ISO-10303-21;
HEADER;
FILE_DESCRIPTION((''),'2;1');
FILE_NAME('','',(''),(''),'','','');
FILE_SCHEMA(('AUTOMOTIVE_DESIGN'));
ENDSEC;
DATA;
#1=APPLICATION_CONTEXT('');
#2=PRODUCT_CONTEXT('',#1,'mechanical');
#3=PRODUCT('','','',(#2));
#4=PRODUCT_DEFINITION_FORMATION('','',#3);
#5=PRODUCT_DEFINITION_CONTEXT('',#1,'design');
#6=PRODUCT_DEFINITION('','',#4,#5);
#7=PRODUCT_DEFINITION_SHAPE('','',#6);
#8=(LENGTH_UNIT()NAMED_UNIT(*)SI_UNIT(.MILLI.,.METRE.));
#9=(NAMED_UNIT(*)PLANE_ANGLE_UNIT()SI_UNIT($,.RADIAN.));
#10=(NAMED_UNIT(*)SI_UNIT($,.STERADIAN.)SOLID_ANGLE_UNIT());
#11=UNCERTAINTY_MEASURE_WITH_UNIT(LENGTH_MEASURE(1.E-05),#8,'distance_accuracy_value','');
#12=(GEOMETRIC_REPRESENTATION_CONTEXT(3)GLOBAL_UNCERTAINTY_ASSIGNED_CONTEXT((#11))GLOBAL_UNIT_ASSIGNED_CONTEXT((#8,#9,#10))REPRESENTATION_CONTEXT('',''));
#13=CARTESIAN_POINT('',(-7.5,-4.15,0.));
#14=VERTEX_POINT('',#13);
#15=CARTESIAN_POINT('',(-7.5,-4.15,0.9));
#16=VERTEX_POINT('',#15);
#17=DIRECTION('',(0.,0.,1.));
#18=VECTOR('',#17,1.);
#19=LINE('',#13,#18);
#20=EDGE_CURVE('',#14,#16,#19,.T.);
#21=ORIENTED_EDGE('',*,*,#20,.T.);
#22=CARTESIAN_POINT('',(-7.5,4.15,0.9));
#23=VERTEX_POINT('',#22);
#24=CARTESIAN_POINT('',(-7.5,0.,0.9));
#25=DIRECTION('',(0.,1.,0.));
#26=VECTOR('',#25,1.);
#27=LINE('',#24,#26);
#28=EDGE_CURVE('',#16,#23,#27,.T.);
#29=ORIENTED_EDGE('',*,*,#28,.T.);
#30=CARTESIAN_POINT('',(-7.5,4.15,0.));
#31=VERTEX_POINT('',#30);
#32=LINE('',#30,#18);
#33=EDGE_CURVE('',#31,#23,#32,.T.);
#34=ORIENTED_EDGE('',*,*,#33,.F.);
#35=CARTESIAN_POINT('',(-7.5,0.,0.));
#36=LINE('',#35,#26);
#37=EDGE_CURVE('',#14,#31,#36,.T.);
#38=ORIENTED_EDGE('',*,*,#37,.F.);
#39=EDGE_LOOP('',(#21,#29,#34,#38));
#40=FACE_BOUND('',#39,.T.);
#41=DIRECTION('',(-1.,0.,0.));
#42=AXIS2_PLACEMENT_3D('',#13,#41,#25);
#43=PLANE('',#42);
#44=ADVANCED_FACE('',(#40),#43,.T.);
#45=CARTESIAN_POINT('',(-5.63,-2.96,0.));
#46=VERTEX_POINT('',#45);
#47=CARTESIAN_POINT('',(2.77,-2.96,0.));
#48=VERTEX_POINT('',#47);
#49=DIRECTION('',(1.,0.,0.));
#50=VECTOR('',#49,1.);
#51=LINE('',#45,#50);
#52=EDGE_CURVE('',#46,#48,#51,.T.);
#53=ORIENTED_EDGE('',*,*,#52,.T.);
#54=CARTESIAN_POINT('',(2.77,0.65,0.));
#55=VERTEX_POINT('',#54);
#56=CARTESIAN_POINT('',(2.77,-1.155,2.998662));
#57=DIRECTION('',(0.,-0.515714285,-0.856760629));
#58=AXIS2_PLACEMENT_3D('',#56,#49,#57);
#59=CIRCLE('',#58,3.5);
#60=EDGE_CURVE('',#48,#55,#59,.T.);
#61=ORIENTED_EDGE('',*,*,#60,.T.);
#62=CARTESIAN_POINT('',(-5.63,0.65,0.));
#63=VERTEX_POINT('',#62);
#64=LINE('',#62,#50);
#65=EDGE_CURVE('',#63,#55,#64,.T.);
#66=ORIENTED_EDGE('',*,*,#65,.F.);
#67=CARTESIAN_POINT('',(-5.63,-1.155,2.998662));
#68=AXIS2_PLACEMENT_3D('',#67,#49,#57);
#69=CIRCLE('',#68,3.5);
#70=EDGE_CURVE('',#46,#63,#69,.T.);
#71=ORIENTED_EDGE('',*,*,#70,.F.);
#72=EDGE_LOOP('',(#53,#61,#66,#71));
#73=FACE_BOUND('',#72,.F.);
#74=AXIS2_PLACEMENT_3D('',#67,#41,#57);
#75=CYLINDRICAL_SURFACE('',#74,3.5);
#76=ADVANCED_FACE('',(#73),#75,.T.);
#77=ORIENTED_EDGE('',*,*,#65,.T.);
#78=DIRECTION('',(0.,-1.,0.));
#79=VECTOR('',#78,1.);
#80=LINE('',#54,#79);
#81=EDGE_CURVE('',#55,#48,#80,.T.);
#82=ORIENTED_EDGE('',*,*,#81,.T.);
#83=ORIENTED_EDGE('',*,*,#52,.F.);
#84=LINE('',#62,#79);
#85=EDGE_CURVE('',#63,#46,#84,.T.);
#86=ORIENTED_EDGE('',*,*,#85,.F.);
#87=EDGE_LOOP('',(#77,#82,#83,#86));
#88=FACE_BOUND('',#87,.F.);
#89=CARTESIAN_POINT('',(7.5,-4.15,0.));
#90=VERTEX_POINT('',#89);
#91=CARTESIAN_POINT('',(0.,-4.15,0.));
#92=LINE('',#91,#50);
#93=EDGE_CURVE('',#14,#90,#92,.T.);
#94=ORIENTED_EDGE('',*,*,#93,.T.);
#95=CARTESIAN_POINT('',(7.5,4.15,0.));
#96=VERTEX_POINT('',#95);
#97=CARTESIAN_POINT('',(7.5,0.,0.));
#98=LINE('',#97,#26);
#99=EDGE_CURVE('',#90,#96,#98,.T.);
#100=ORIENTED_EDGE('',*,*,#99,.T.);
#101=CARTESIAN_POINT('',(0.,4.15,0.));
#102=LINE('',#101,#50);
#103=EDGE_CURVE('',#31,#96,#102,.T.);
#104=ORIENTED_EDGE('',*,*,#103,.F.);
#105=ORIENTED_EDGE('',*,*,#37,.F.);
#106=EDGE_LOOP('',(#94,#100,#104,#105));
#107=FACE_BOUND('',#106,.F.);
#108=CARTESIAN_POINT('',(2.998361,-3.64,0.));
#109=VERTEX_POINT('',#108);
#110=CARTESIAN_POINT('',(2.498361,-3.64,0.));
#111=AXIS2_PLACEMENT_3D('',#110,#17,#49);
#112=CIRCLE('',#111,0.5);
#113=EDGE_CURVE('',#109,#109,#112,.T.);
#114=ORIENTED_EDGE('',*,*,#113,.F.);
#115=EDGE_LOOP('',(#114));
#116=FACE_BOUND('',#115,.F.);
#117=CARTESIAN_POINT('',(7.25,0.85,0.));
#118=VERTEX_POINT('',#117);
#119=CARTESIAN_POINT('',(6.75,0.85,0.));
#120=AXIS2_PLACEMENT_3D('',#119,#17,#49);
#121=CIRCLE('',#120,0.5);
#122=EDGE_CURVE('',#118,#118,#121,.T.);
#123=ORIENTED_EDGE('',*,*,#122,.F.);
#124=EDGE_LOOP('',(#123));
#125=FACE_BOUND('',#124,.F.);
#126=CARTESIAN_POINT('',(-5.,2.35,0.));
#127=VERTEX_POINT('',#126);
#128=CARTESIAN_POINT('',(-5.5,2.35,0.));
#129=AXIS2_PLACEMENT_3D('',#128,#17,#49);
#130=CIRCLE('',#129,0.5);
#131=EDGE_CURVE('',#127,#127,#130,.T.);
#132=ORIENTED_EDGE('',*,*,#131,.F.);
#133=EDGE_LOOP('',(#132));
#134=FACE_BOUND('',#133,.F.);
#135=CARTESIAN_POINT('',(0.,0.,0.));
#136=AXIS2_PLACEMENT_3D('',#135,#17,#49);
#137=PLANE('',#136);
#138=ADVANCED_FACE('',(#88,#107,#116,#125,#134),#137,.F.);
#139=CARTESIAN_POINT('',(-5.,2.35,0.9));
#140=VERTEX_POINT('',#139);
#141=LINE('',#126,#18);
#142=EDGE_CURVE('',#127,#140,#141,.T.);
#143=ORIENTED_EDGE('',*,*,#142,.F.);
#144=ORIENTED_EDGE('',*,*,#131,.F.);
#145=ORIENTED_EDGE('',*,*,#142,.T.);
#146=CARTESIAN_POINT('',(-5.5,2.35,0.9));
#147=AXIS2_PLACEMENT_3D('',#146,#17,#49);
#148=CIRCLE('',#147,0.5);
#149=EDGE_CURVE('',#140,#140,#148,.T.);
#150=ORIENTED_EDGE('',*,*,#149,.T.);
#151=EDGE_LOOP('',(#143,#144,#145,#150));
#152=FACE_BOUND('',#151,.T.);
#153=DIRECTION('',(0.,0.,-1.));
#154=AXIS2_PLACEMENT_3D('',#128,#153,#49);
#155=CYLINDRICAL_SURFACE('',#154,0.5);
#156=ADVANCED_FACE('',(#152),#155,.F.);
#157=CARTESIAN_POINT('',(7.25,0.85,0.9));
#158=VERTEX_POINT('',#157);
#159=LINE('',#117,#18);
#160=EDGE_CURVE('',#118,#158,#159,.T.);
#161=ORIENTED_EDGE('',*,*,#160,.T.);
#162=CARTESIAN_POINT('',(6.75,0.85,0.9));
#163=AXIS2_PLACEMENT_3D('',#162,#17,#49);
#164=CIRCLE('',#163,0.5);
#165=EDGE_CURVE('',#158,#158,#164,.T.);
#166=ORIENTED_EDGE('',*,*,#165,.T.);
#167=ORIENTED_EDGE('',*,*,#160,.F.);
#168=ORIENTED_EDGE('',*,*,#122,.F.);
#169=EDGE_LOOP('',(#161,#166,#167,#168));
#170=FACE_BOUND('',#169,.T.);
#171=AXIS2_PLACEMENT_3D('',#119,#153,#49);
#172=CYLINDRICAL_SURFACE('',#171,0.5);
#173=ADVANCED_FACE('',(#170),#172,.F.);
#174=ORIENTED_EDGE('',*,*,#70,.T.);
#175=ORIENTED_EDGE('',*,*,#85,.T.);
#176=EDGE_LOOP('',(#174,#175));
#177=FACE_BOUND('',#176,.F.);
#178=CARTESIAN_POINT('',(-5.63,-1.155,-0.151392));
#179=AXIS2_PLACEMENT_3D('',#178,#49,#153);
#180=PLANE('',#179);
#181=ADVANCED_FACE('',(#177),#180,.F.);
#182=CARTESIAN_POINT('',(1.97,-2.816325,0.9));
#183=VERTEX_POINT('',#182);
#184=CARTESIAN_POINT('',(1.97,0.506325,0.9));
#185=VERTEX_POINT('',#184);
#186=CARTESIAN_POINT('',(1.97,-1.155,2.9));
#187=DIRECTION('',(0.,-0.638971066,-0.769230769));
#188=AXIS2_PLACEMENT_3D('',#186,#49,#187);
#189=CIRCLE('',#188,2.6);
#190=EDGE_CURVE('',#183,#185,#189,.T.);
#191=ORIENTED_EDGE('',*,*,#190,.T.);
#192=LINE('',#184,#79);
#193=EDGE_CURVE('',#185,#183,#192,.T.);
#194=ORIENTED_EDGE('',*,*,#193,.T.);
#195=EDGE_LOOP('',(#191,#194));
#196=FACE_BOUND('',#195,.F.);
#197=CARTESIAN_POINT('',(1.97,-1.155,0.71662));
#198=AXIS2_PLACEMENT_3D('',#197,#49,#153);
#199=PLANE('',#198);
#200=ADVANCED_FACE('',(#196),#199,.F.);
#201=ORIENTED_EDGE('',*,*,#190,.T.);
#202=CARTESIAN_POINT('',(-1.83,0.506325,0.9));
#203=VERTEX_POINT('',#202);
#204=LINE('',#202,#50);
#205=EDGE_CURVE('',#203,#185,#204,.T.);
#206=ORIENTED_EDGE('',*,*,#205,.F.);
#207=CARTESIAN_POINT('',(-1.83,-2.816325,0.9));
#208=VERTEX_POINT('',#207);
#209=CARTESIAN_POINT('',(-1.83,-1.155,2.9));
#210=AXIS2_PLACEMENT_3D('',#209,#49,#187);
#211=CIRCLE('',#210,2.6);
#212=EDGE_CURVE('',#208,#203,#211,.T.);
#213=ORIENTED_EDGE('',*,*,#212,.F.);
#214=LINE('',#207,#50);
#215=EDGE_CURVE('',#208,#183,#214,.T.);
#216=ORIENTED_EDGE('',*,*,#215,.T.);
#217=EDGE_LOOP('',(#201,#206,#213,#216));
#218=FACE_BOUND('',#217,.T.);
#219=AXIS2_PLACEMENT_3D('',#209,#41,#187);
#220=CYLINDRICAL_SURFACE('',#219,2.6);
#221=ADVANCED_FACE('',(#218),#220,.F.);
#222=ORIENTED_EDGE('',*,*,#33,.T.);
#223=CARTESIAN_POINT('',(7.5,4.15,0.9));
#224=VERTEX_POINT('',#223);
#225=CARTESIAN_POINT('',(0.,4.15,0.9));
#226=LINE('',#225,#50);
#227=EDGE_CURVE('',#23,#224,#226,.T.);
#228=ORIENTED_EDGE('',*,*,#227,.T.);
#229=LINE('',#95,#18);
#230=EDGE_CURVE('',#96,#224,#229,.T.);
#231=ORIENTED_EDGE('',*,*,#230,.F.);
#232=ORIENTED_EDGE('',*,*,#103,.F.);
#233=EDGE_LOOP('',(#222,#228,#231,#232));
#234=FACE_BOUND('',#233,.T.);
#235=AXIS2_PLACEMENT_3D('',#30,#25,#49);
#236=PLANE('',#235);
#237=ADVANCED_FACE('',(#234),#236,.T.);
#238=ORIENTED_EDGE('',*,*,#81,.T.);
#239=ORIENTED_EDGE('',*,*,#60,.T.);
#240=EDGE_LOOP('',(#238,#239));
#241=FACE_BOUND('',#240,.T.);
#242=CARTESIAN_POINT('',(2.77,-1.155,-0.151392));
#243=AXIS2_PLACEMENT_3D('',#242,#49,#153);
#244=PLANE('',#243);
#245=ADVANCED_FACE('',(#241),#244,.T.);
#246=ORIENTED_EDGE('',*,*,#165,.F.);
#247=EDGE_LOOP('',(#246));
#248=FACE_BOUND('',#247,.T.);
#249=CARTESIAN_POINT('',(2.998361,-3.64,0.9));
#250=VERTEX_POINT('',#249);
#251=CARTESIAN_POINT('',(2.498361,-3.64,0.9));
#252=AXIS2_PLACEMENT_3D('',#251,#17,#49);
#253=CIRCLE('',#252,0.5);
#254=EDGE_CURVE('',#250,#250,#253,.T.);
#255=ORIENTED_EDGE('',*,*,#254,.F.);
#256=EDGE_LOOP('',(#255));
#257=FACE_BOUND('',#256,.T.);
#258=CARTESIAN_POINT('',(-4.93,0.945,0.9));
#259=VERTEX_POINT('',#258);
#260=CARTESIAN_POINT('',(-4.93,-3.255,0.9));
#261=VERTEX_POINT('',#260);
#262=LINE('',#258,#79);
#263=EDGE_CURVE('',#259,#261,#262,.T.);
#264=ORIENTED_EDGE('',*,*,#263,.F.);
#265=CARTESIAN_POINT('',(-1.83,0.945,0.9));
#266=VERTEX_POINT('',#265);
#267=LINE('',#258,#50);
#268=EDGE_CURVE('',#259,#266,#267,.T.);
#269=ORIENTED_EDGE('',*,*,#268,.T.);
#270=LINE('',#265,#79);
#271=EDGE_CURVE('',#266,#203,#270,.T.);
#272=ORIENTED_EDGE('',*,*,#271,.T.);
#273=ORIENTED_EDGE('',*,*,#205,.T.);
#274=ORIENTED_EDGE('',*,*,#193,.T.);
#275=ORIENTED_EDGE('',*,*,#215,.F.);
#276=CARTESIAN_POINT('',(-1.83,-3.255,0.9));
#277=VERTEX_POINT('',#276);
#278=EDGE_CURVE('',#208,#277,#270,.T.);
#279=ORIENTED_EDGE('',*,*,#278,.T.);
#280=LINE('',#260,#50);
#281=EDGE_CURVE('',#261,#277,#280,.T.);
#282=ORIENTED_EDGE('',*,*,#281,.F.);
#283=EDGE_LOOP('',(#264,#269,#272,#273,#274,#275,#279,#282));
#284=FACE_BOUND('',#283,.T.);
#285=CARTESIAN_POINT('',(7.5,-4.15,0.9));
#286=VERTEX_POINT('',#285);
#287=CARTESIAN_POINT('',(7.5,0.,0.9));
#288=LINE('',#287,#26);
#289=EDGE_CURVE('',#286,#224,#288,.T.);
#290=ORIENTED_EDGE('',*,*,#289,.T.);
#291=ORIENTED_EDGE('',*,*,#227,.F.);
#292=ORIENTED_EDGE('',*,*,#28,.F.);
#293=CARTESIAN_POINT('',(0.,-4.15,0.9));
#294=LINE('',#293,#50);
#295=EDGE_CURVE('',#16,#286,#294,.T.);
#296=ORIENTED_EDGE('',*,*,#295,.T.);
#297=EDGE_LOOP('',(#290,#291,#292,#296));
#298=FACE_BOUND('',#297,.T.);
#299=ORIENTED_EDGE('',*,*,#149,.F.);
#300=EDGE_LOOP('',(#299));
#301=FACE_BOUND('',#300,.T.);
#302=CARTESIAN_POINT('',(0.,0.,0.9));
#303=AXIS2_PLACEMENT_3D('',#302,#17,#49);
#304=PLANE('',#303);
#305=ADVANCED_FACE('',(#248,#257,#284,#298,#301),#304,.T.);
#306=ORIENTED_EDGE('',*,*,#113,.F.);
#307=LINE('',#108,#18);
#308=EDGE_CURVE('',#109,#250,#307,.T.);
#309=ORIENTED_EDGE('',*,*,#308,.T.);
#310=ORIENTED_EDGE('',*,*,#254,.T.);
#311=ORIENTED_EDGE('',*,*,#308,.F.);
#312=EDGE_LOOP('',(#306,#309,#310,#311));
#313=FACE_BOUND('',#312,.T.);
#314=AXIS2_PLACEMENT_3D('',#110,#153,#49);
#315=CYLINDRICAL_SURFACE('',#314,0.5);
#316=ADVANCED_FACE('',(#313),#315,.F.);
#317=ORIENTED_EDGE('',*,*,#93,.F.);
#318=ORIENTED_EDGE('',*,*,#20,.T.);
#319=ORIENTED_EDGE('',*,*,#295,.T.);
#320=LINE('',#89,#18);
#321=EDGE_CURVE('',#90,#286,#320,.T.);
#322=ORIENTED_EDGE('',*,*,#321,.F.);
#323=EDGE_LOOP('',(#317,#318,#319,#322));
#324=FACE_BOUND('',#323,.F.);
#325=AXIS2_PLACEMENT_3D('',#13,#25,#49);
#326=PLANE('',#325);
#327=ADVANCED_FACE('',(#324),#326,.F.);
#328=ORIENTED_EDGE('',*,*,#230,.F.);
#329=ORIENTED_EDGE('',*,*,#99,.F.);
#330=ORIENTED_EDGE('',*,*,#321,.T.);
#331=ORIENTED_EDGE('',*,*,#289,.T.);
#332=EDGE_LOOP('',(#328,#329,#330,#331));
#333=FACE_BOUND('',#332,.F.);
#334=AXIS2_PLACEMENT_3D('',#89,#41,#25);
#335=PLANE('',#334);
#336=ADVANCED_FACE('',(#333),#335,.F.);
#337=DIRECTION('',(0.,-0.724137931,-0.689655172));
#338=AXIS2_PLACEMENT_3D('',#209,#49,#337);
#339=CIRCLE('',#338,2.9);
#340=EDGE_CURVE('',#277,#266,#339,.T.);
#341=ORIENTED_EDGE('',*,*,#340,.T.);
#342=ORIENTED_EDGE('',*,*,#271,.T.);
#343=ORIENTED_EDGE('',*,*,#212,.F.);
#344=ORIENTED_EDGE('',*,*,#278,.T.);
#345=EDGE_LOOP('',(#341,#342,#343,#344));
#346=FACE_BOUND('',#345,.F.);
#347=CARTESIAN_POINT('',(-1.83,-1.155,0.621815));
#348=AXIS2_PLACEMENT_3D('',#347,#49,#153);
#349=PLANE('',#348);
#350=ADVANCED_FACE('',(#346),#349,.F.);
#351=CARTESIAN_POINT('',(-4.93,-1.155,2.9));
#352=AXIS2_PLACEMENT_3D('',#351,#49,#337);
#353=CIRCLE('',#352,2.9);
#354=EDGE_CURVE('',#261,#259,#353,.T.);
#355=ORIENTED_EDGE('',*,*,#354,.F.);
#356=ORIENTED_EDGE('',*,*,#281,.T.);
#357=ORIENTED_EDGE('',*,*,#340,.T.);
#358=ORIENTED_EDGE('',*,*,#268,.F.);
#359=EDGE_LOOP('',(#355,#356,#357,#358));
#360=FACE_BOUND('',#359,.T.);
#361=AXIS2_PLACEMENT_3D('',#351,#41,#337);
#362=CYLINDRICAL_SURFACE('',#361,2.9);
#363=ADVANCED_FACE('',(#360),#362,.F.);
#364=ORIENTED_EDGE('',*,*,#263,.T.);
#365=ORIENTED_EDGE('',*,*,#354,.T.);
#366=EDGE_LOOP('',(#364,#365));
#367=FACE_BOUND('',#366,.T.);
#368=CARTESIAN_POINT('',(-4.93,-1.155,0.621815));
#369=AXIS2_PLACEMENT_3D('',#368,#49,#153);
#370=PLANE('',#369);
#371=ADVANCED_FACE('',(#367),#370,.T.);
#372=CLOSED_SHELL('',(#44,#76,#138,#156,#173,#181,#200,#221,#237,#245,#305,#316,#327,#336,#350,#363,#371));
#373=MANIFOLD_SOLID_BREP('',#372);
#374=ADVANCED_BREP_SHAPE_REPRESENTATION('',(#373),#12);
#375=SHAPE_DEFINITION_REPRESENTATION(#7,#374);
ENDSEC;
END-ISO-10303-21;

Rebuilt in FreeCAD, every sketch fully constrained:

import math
import FreeCAD as App
import Part
import Sketcher


def add_polygon(sketch, points):
    """Adds a closed chain of lines whose ends are joined by coincident constraints."""
    first, n = sketch.GeometryCount, len(points)
    for a, b in zip(points, points[1:] + points[:1]):
        sketch.addGeometry(Part.LineSegment(App.Vector(*a, 0), App.Vector(*b, 0)), False)
    for i in range(n):
        sketch.addConstraint(Sketcher.Constraint("Coincident", first + i, 2, first + (i + 1) % n, 1))

doc = App.newDocument("Part")
params = doc.addObject("Spreadsheet::Sheet", "Params")
for row, (alias, value) in enumerate([
    ("sketch1_diameter", "1 mm"),
    ("sketch1_width", "15 mm"),
    ("sketch1_height", "8.3 mm"),
    ("pad1_length", "0.9 mm"),
    ("sketch2_radius", "3.5 mm"),
    ("sketch2_width", "3.61 mm"),
    ("pad2_length", "8.4 mm"),
    ("sketch3_radius", "2.9 mm"),
    ("sketch3_width", "4.2 mm"),
    ("pocket1_length", "3.1 mm"),
    ("sketch4_radius", "2.6 mm"),
    ("pocket2_length", "3.8 mm"),
], start=1):
    params.set(f"A{row}", alias)
    params.set(f"B{row}", "=" + value)
    params.setAlias(f"B{row}", alias)

body = doc.addObject("PartDesign::Body", "Body")

# Sketch on XY plane
sketch1 = doc.addObject("Sketcher::SketchObject", "Sketch")
body.addObject(sketch1)
sketch1.AttachmentSupport = (doc.XY_Plane, [""])
sketch1.MapMode = "FlatFace"
add_polygon(sketch1, [(-7.5, 4.2), (-7.5, -4.2), (7.5, -4.2), (7.5, 4.2)])  # lines 0-3
sketch1.addGeometry(Part.Circle(App.Vector(2.5, -3.6, 0), App.Vector(0, 0, 1), 0.5), False)  # 4
sketch1.addGeometry(Part.Circle(App.Vector(-5.5, 2.4, 0), App.Vector(0, 0, 1), 0.5), False)  # 5
sketch1.addGeometry(Part.Circle(App.Vector(6.8, 0.8, 0), App.Vector(0, 0, 1), 0.5), False)  # 6
sketch1.addConstraint([
    Sketcher.Constraint("Vertical", 0),
    Sketcher.Constraint("Horizontal", 1),
    Sketcher.Constraint("Vertical", 2),
    Sketcher.Constraint("Horizontal", 3),
    Sketcher.Constraint("Equal", 4, 5),
    Sketcher.Constraint("Equal", 5, 6),
    Sketcher.Constraint("Symmetric", 0, 2, 2, 2, -1, 1),
    Sketcher.Constraint("Diameter", 4, 1.0),
    Sketcher.Constraint("DistanceX", 1, 1, 1, 2, 15.0),
    Sketcher.Constraint("DistanceY", 0, 2, 0, 1, 8.3),
    Sketcher.Constraint("DistanceX", 0, 2, 5, 3, 2.0),
    Sketcher.Constraint("DistanceY", 0, 2, 6, 3, 5.0),
    Sketcher.Constraint("DistanceY", 6, 3, 5, 3, 1.5),
    Sketcher.Constraint("DistanceY", 4, 3, -1, 1, 3.64),
    Sketcher.Constraint("DistanceX", -1, 1, 6, 3, 6.75),
    Sketcher.Constraint("DistanceX", -1, 1, 4, 3, 2.498361),
])
sketch1.setExpression("Constraints[11]", "Params.sketch1_diameter")
sketch1.setExpression("Constraints[12]", "Params.sketch1_width")
sketch1.setExpression("Constraints[13]", "Params.sketch1_height")
pad1 = doc.addObject("PartDesign::Pad", "Pad")
body.addObject(pad1)
pad1.Profile = sketch1
pad1.setExpression("Length", "Params.pad1_length")

# Sketch on YZ plane
sketch2 = doc.addObject("Sketcher::SketchObject", "Sketch001")
body.addObject(sketch2)
sketch2.AttachmentSupport = (doc.YZ_Plane, [""])
sketch2.MapMode = "FlatFace"
sketch2.AttachmentOffset = App.Placement(App.Vector(0, 0, -5.63), App.Rotation())
sketch2.addGeometry([
    Part.LineSegment(App.Vector(-3, 0, 0), App.Vector(0.7, 0, 0)),
    Part.ArcOfCircle(Part.Circle(App.Vector(-1.2, 3, 0), App.Vector(0, 0, 1), 3.5), math.radians(-121), math.radians(-59)),
], False)
sketch2.addConstraint([
    Sketcher.Constraint("Coincident", 0, 1, 1, 1),
    Sketcher.Constraint("Coincident", 1, 2, 0, 2),
    Sketcher.Constraint("Horizontal", 0),
    Sketcher.Constraint("PointOnObject", 0, 1, -1),
    Sketcher.Constraint("Radius", 1, 3.5),
    Sketcher.Constraint("DistanceX", 0, 1, 0, 2, 3.61),
    Sketcher.Constraint("DistanceX", 0, 1, -1, 1, 2.96),
])
sketch2.setExpression("Constraints[4]", "Params.sketch2_radius")
sketch2.setExpression("Constraints[5]", "Params.sketch2_width")
pad2 = doc.addObject("PartDesign::Pad", "Pad001")
body.addObject(pad2)
pad2.Profile = sketch2
pad2.setExpression("Length", "Params.pad2_length")

# Sketch on YZ plane
sketch3 = doc.addObject("Sketcher::SketchObject", "Sketch002")
body.addObject(sketch3)
sketch3.AttachmentSupport = (doc.YZ_Plane, [""])
sketch3.MapMode = "FlatFace"
sketch3.AttachmentOffset = App.Placement(App.Vector(0, 0, -4.93), App.Rotation())
sketch3.addGeometry([
    Part.LineSegment(App.Vector(-3.3, 0.9, 0), App.Vector(0.9, 0.9, 0)),
    Part.ArcOfCircle(Part.Circle(App.Vector(-1.2, 2.9, 0), App.Vector(0, 0, 1), 2.9), math.radians(-136), math.radians(-44)),
], False)
sketch3.addConstraint([
    Sketcher.Constraint("Coincident", 0, 1, 1, 1),
    Sketcher.Constraint("Coincident", 1, 2, 0, 2),
    Sketcher.Constraint("Horizontal", 0),
    Sketcher.Constraint("Radius", 1, 2.9),
    Sketcher.Constraint("DistanceX", 0, 1, 0, 2, 4.2),
    Sketcher.Constraint("DistanceY", -1, 1, 1, 3, 2.9),
    Sketcher.Constraint("DistanceX", 1, 3, -1, 1, 1.155),
])
sketch3.setExpression("Constraints[3]", "Params.sketch3_radius")
sketch3.setExpression("Constraints[4]", "Params.sketch3_width")
pocket1 = doc.addObject("PartDesign::Pocket", "Pocket")
body.addObject(pocket1)
pocket1.Profile = sketch3
pocket1.setExpression("Length", "Params.pocket1_length")
pocket1.Reversed = True

# Sketch on YZ plane
sketch4 = doc.addObject("Sketcher::SketchObject", "Sketch003")
body.addObject(sketch4)
sketch4.AttachmentSupport = (doc.YZ_Plane, [""])
sketch4.MapMode = "FlatFace"
sketch4.AttachmentOffset = App.Placement(App.Vector(0, 0, -1.83), App.Rotation())
sketch4.addGeometry([
    Part.LineSegment(App.Vector(-2.8, 0.9, 0), App.Vector(0.5, 0.9, 0)),
    Part.ArcOfCircle(Part.Circle(App.Vector(-1.2, 2.9, 0), App.Vector(0, 0, 1), 2.6), math.radians(-130), math.radians(-50)),
], False)
sketch4.addConstraint([
    Sketcher.Constraint("Coincident", 0, 1, 1, 1),
    Sketcher.Constraint("Coincident", 1, 2, 0, 2),
    Sketcher.Constraint("Horizontal", 0),
    Sketcher.Constraint("Radius", 1, 2.6),
    Sketcher.Constraint("DistanceY", 0, 1, 1, 3, 2.0),
    Sketcher.Constraint("DistanceY", -1, 1, 1, 3, 2.9),
    Sketcher.Constraint("DistanceX", 1, 3, -1, 1, 1.155),
])
sketch4.setExpression("Constraints[3]", "Params.sketch4_radius")
pocket2 = doc.addObject("PartDesign::Pocket", "Pocket001")
body.addObject(pocket2)
pocket2.Profile = sketch4
pocket2.setExpression("Length", "Params.pocket2_length")
pocket2.Reversed = True

doc.recompute()
